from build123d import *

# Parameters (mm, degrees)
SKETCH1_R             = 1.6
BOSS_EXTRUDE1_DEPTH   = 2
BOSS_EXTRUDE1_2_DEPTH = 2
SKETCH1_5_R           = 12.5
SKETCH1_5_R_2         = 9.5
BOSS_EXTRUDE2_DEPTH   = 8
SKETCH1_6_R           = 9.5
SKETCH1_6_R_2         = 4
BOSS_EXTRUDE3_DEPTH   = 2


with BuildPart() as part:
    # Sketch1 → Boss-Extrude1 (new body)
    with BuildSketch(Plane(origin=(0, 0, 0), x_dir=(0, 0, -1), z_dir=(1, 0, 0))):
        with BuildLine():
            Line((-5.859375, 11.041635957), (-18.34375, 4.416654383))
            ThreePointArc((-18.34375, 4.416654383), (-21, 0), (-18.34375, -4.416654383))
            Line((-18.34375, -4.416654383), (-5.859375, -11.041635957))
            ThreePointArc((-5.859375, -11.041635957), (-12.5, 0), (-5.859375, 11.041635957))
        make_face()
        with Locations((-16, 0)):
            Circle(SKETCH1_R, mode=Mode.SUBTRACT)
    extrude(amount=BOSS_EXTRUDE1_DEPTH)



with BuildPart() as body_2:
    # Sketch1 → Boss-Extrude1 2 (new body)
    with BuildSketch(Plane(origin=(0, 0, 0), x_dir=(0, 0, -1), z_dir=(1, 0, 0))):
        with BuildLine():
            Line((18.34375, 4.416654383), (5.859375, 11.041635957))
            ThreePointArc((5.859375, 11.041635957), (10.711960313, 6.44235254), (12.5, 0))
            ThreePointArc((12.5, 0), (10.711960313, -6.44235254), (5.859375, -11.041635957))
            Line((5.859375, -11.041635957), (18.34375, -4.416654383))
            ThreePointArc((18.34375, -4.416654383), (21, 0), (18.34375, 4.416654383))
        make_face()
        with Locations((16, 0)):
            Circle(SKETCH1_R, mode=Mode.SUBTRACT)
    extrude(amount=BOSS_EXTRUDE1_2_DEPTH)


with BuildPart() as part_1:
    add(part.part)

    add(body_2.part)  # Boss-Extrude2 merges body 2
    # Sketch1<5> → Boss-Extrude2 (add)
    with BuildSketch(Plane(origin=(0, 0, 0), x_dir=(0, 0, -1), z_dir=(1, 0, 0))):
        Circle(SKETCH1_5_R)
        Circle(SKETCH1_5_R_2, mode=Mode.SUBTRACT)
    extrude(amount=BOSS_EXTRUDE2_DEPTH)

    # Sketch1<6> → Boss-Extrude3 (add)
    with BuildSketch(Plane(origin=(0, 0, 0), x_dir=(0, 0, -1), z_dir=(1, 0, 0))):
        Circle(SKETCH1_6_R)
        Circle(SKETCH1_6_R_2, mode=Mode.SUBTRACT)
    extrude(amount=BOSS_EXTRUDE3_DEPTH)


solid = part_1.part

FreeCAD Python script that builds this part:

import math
import FreeCAD as App
import Part
import Sketcher
from FreeCAD import Vector

doc = App.newDocument("Part")
body = doc.addObject("PartDesign::Body", "Body")

sketch1 = doc.addObject("Sketcher::SketchObject", "Sketch")
body.addObject(sketch1)
sketch1.AttachmentSupport = (doc.YZ_Plane, [""])
sketch1.MapMode = "FlatFace"
sketch1.addGeometry(Part.LineSegment(Vector(11.041636, 5.859375, 0), Vector(4.416654, 18.34375, 0)), False)
sketch1.addGeometry(Part.ArcOfCircle(Part.Circle(Vector(0, 16, 0), Vector(0, 0, 1), 5), math.radians(27.953187), math.radians(152.046813)), False)
sketch1.addGeometry(Part.LineSegment(Vector(-4.416654, 18.34375, 0), Vector(-11.041636, 5.859375, 0)), False)
sketch1.addGeometry(Part.ArcOfCircle(Part.Circle(Vector(0, 0, 0), Vector(0, 0, 1), 12.5), math.radians(27.953187), math.radians(152.046813)), False)
sketch1.addGeometry(Part.Circle(Vector(0, 16, 0), Vector(0, 0, 1), 1.6), False)
sketch1.addConstraint(Sketcher.Constraint("Tangent", 0, 2, 1, 1))
sketch1.addConstraint(Sketcher.Constraint("Tangent", 1, 2, 2, 1))
sketch1.addConstraint(Sketcher.Constraint("Tangent", 2, 2, 3, 2))
sketch1.addConstraint(Sketcher.Constraint("Tangent", 3, 1, 0, 1))
sketch1.addConstraint(Sketcher.Constraint("Coincident", 3, 3, -1, 1))
sketch1.addConstraint(Sketcher.Constraint("Coincident", 4, 3, 1, 3))
sketch1.addConstraint(Sketcher.Constraint("PointOnObject", 1, 3, -2))
sketch1.addConstraint(Sketcher.Constraint("Radius", 1, 5.0))
sketch1.addConstraint(Sketcher.Constraint("Diameter", 4, 3.2))
sketch1.addConstraint(Sketcher.Constraint("Radius", 3, 12.5))
sketch1.addConstraint(Sketcher.Constraint("DistanceY", -1, 1, 1, 3, 16.0))
pad1 = doc.addObject("PartDesign::Pad", "Pad")
body.addObject(pad1)
pad1.Profile = sketch1
pad1.Length = 2
body2 = doc.addObject("PartDesign::Body", "Body001")

sketch2 = doc.addObject("Sketcher::SketchObject", "Sketch001")
body2.addObject(sketch2)
sketch2.AttachmentSupport = (doc.getObject("YZ_Plane001"), [""])
sketch2.MapMode = "FlatFace"
sketch2.addGeometry(Part.LineSegment(Vector(4.416654, -18.34375, 0), Vector(11.041636, -5.859375, 0)), False)
sketch2.addGeometry(Part.ArcOfCircle(Part.Circle(Vector(0, 0, 0), Vector(0, 0, 1), 12.5), math.radians(-90), math.radians(-27.953187)), False)
sketch2.addGeometry(Part.ArcOfCircle(Part.Circle(Vector(0, 0, 0), Vector(0, 0, 1), 12.5), math.radians(-152.046813), math.radians(-90)), False)
sketch2.addGeometry(Part.LineSegment(Vector(-11.041636, -5.859375, 0), Vector(-4.416654, -18.34375, 0)), False)
sketch2.addGeometry(Part.ArcOfCircle(Part.Circle(Vector(0, -16, 0), Vector(0, 0, 1), 5), math.radians(-152.046813), math.radians(-27.953187)), False)
sketch2.addGeometry(Part.Circle(Vector(0, -16, 0), Vector(0, 0, 1), 1.6), False)
sketch2.addConstraint(Sketcher.Constraint("Tangent", 0, 2, 1, 2))
sketch2.addConstraint(Sketcher.Constraint("Tangent", 1, 1, 2, 2))
sketch2.addConstraint(Sketcher.Constraint("Tangent", 2, 1, 3, 1))
sketch2.addConstraint(Sketcher.Constraint("Tangent", 3, 2, 4, 1))
sketch2.addConstraint(Sketcher.Constraint("Tangent", 4, 2, 0, 1))
sketch2.addConstraint(Sketcher.Constraint("Coincident", 1, 3, -1, 1))
sketch2.addConstraint(Sketcher.Constraint("Coincident", 5, 3, 4, 3))
sketch2.addConstraint(Sketcher.Constraint("Equal", 1, 2))
sketch2.addConstraint(Sketcher.Constraint("PointOnObject", 4, 3, -2))
sketch2.addConstraint(Sketcher.Constraint("PointOnObject", 1, 1, -2))
sketch2.addConstraint(Sketcher.Constraint("Radius", 4, 5.0))
sketch2.addConstraint(Sketcher.Constraint("Diameter", 5, 3.2))
sketch2.addConstraint(Sketcher.Constraint("Radius", 1, 12.5))
sketch2.addConstraint(Sketcher.Constraint("DistanceY", 4, 3, -1, 1, 16.0))
pad2 = doc.addObject("PartDesign::Pad", "Pad001")
body2.addObject(pad2)
pad2.Profile = sketch2
pad2.Length = 2
body.AllowCompound = True
doc.recompute()

boolean = doc.addObject("PartDesign::Boolean", "Boolean")
body.addObject(boolean)
boolean.Type = "Fuse"
boolean.addObjects([body2])

sketch3 = doc.addObject("Sketcher::SketchObject", "Sketch002")
body.addObject(sketch3)
sketch3.AttachmentSupport = (doc.YZ_Plane, [""])
sketch3.MapMode = "FlatFace"
sketch3.addGeometry(Part.Circle(Vector(0, 0, 0), Vector(0, 0, 1), 12.5), False)
sketch3.addGeometry(Part.Circle(Vector(0, 0, 0), Vector(0, 0, 1), 9.5), False)
sketch3.addConstraint(Sketcher.Constraint("Coincident", 0, 3, -1, 1))
sketch3.addConstraint(Sketcher.Constraint("Coincident", 1, 3, -1, 1))
sketch3.addConstraint(Sketcher.Constraint("Diameter", 0, 25.0))
sketch3.addConstraint(Sketcher.Constraint("Diameter", 1, 19.0))
pad3 = doc.addObject("PartDesign::Pad", "Pad002")
body.addObject(pad3)
pad3.Profile = sketch3
pad3.Length = 8

sketch4 = doc.addObject("Sketcher::SketchObject", "Sketch003")
body.addObject(sketch4)
sketch4.AttachmentSupport = (doc.YZ_Plane, [""])
sketch4.MapMode = "FlatFace"
sketch4.addGeometry(Part.Circle(Vector(0, 0, 0), Vector(0, 0, 1), 9.5), False)
sketch4.addGeometry(Part.Circle(Vector(0, 0, 0), Vector(0, 0, 1), 4), False)
sketch4.addConstraint(Sketcher.Constraint("Coincident", 0, 3, -1, 1))
sketch4.addConstraint(Sketcher.Constraint("Coincident", 1, 3, -1, 1))
sketch4.addConstraint(Sketcher.Constraint("Diameter", 0, 19.0))
sketch4.addConstraint(Sketcher.Constraint("Diameter", 1, 8.0))
pad4 = doc.addObject("PartDesign::Pad", "Pad003")
body.addObject(pad4)
pad4.Profile = sketch4
pad4.Length = 2

doc.recompute()
